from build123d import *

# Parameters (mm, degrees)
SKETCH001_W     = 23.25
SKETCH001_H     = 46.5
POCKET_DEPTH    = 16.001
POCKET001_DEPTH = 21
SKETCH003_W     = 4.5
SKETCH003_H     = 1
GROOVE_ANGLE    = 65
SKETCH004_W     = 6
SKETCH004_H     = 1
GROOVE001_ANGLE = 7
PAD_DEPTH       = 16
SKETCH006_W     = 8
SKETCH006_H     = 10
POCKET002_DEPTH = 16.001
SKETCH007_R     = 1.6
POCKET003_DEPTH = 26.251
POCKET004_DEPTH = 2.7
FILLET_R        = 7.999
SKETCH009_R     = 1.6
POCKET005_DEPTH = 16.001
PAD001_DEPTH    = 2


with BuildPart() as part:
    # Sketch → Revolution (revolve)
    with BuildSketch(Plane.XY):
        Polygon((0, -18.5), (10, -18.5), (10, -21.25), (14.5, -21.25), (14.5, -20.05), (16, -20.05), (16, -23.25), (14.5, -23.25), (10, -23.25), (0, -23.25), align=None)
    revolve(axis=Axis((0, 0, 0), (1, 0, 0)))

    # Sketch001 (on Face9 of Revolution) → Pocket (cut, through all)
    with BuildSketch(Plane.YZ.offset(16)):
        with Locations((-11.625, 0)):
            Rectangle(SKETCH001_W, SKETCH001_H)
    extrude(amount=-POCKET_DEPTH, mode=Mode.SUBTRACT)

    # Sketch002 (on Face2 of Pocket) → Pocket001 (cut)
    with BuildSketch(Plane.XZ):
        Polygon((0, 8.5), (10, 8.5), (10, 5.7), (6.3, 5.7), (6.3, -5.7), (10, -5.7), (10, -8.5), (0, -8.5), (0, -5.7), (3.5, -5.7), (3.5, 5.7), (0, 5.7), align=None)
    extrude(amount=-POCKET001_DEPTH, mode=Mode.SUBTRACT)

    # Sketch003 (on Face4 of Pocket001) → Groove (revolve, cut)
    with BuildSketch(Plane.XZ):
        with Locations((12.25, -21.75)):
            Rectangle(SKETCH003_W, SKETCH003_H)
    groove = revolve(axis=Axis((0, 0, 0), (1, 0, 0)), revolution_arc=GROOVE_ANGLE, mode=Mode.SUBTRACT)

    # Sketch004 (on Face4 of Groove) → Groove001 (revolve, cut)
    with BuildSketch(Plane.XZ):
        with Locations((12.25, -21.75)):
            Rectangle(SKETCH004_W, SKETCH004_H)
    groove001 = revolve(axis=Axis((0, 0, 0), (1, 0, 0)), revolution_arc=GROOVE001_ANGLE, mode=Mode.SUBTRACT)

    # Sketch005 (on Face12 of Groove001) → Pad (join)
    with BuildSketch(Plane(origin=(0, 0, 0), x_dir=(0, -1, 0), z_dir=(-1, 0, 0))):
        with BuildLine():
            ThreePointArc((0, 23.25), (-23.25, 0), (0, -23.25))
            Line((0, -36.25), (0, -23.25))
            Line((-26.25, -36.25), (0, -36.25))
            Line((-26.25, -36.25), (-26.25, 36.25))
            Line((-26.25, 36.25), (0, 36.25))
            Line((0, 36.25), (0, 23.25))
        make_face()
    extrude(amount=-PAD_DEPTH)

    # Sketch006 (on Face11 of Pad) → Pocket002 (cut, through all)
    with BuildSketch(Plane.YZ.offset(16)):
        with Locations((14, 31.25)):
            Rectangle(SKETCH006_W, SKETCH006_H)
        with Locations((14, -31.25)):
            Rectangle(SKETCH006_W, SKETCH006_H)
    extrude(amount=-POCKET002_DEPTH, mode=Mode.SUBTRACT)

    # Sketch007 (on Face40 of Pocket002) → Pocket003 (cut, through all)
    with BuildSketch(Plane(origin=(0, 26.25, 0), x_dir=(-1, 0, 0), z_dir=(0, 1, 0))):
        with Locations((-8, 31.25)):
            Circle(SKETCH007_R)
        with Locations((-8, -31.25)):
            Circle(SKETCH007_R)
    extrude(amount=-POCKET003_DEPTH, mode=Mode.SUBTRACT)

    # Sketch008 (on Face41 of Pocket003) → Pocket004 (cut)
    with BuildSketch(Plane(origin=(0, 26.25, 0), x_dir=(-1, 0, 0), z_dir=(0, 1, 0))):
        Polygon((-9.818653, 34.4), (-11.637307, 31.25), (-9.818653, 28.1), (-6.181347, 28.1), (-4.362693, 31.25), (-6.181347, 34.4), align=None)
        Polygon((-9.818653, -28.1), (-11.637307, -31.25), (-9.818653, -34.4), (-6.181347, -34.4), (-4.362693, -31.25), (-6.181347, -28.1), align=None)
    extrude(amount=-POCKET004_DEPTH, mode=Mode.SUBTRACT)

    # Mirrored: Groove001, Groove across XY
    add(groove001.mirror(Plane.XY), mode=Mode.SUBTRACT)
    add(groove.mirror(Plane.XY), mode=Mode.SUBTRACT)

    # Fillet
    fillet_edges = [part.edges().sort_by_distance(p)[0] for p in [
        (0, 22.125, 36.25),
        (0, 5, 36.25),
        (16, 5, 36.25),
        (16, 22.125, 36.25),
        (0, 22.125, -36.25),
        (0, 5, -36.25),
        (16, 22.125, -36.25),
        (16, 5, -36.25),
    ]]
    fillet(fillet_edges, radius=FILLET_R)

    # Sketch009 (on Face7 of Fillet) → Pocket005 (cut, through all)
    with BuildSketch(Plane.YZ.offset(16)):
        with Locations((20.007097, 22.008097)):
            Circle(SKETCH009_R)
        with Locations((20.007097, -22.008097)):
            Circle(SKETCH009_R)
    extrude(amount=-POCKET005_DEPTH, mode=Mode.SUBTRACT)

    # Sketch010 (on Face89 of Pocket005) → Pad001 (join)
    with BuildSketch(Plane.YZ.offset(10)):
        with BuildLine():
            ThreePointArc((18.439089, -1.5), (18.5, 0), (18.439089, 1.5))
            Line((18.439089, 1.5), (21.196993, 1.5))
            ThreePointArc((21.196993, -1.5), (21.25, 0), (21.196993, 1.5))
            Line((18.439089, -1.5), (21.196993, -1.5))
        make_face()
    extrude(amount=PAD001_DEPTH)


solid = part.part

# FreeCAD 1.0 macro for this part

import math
import FreeCAD as App
import Part
import Sketcher
from FreeCAD import Vector
Q = App.Units.Quantity


def edges_at(feature, points):
    """Names of the edges that pass closest to the given points."""
    edges = feature.Shape.Edges
    near = lambda p: min(range(len(edges)), key=lambda i: edges[i].distToShape(Part.Vertex(*p))[0])
    return sorted({f"Edge{near(p) + 1}" for p in points})


def add_polygon(sketch, points):
    """Adds a closed chain of lines whose ends are joined by coincident constraints."""
    first, n = sketch.GeometryCount, len(points)
    for a, b in zip(points, points[1:] + points[:1]):
        sketch.addGeometry(Part.LineSegment(App.Vector(*a, 0), App.Vector(*b, 0)), False)
    for i in range(n):
        sketch.addConstraint(Sketcher.Constraint("Coincident", first + i, 2, first + (i + 1) % n, 1))

doc = App.newDocument("Part")
body = doc.addObject("PartDesign::Body", "Body")

sketch1 = body.newObject("Sketcher::SketchObject", "Sketch")
sketch1.AttachmentSupport = (doc.getObject("XY_Plane"), [""])
sketch1.MapMode = "FlatFace"
add_polygon(sketch1, [(10, -18.5), (0, -18.5), (0, -23.2), (16, -23.2), (16, -20.1), (14.5, -20.1), (14.5, -21.2), (10, -21.2)])
sketch1.addConstraint([
    Sketcher.Constraint("Horizontal", 0),
    Sketcher.Constraint("Vertical", 1),
    Sketcher.Constraint("Horizontal", 2),
    Sketcher.Constraint("Vertical", 3),
    Sketcher.Constraint("Horizontal", 4),
    Sketcher.Constraint("Vertical", 5),
    Sketcher.Constraint("Horizontal", 6),
    Sketcher.Constraint("Vertical", 7),
    Sketcher.Constraint("PointOnObject", 0, 2, -2),
    Sketcher.Constraint("DistanceX", 0, 2, 0, 1, Q("10 mm")),
    Sketcher.Constraint("DistanceX", 2, 1, 2, 2, Q("16 mm")),
    Sketcher.Constraint("DistanceX", 4, 2, 4, 1, Q("1.5 mm")),
    Sketcher.Constraint("DistanceY", 3, 1, 3, 2, Q("3.2 mm")),
    Sketcher.Constraint("DistanceY", 5, 2, 5, 1, Q("1.2 mm")),
    Sketcher.Constraint("DistanceY", 1, 2, 1, 1, Q("4.75 mm")),
    Sketcher.Constraint("DistanceY", 0, 2, -1, 1, Q("18.5 mm")),
])
revolution = body.newObject("PartDesign::Revolution", "Revolution")
revolution.Profile = sketch1
revolution.ReferenceAxis = (sketch1, ["H_Axis"])
revolution.Angle = 360

sketch2 = body.newObject("Sketcher::SketchObject", "Sketch001")
sketch2.AttachmentSupport = (doc.getObject("YZ_Plane"), [""])
sketch2.MapMode = "FlatFace"
sketch2.AttachmentOffset = App.Placement(Vector(0, 0, 16), App.Rotation())
add_polygon(sketch2, [(-23, 23), (-23, -23), (0, -23), (0, 23)])
sketch2.addConstraint([
    Sketcher.Constraint("Vertical", 0),
    Sketcher.Constraint("Horizontal", 1),
    Sketcher.Constraint("Vertical", 2),
    Sketcher.Constraint("Horizontal", 3),
    Sketcher.Constraint("Symmetric", 1, 2, 2, 2, -1, 1),
    Sketcher.Constraint("DistanceY", 0, 2, 0, 1, Q("46.5 mm")),
    Sketcher.Constraint("DistanceX", 1, 1, 1, 2, Q("23.25 mm")),
])
pocket1 = body.newObject("PartDesign::Pocket", "Pocket")
pocket1.Profile = sketch2
pocket1.Type = "ThroughAll"

sketch3 = body.newObject("Sketcher::SketchObject", "Sketch002")
sketch3.AttachmentSupport = (doc.getObject("XZ_Plane"), [""])
sketch3.MapMode = "FlatFace"
add_polygon(sketch3, [(10, 8.5), (0, 8.5), (0, 5.7), (3.5, 5.7), (3.5, -5.7), (0, -5.7), (0, -8.5), (10, -8.5), (10, -5.7), (6.3, -5.7), (6.3, 5.7), (10, 5.7)])
sketch3.addConstraint([
    Sketcher.Constraint("Horizontal", 0),
    Sketcher.Constraint("Vertical", 1),
    Sketcher.Constraint("Horizontal", 2),
    Sketcher.Constraint("Vertical", 3),
    Sketcher.Constraint("Horizontal", 4),
    Sketcher.Constraint("Vertical", 5),
    Sketcher.Constraint("Horizontal", 6),
    Sketcher.Constraint("Vertical", 7),
    Sketcher.Constraint("Horizontal", 8),
    Sketcher.Constraint("Vertical", 9),
    Sketcher.Constraint("Horizontal", 10),
    Sketcher.Constraint("Vertical", 11),
    Sketcher.Constraint("Symmetric", 1, 2, 4, 2, -1, 1),
    Sketcher.Constraint("Symmetric", 0, 2, 5, 2, -1),
    Sketcher.Constraint("Symmetric", 7, 2, 10, 2, -1),
    Sketcher.Constraint("Horizontal", 4, 2, 7, 2),
    Sketcher.Constraint("DistanceX", 0, 2, 0, 1, Q("10 mm")),
    Sketcher.Constraint("DistanceX", 2, 1, 2, 2, Q("3.5 mm")),
    Sketcher.Constraint("DistanceX", 8, 2, 8, 1, Q("3.7 mm")),
    Sketcher.Constraint("DistanceY", 1, 2, 1, 1, Q("2.8 mm")),
    Sketcher.Constraint("DistanceY", 3, 2, 3, 1, Q("11.4 mm")),
])
pocket2 = body.newObject("PartDesign::Pocket", "Pocket001")
pocket2.Profile = sketch3
pocket2.Length = 21

sketch4 = body.newObject("Sketcher::SketchObject", "Sketch003")
sketch4.AttachmentSupport = (doc.getObject("XZ_Plane"), [""])
sketch4.MapMode = "FlatFace"
add_polygon(sketch4, [(10, -21.2), (10, -22.2), (14.5, -22.2), (14.5, -21.2)])
sketch4.addConstraint([
    Sketcher.Constraint("Vertical", 0),
    Sketcher.Constraint("Horizontal", 1),
    Sketcher.Constraint("Vertical", 2),
    Sketcher.Constraint("Horizontal", 3),
    Sketcher.Constraint("DistanceY", 0, 2, 0, 1, Q("1 mm")),
    Sketcher.Constraint("DistanceX", 1, 1, 1, 2, Q("4.5 mm")),
    Sketcher.Constraint("DistanceX", -1, 1, 0, 2, Q("10 mm")),
    Sketcher.Constraint("DistanceY", 0, 2, -1, 1, Q("22.25 mm")),
])
groove = body.newObject("PartDesign::Groove", "Groove")
groove.Profile = sketch4
groove.ReferenceAxis = (sketch4, ["H_Axis"])
groove.Angle = 65

sketch5 = body.newObject("Sketcher::SketchObject", "Sketch004")
sketch5.AttachmentSupport = (doc.getObject("XZ_Plane"), [""])
sketch5.MapMode = "FlatFace"
add_polygon(sketch5, [(9.2, -21.2), (9.2, -22.2), (15.2, -22.2), (15.2, -21.2)])
sketch5.addConstraint([
    Sketcher.Constraint("Vertical", 0),
    Sketcher.Constraint("Horizontal", 1),
    Sketcher.Constraint("Vertical", 2),
    Sketcher.Constraint("Horizontal", 3),
    Sketcher.Constraint("DistanceX", 1, 1, 1, 2, Q("6 mm")),
    Sketcher.Constraint("DistanceY", 0, 2, 0, 1, Q("1 mm")),
    Sketcher.Constraint("DistanceX", -1, 1, 0, 2, Q("9.25 mm")),
    Sketcher.Constraint("DistanceY", 0, 2, -1, 1, Q("22.25 mm")),
])
groove2 = body.newObject("PartDesign::Groove", "Groove001")
groove2.Profile = sketch5
groove2.ReferenceAxis = (sketch5, ["H_Axis"])
groove2.Angle = 7

sketch6 = body.newObject("Sketcher::SketchObject", "Sketch005")
sketch6.AttachmentSupport = (doc.getObject("YZ_Plane"), [""])
sketch6.MapMode = "FlatFace"
sketch6.addGeometry([
    Part.ArcOfCircle(Part.Circle(Vector(0, 0, 0), Vector(0, 0, 1), 23), math.radians(-90), math.radians(90)),
    Part.LineSegment(Vector(0, 23, 0), Vector(0, 36, 0)),
    Part.LineSegment(Vector(0, 36, 0), Vector(26, 36, 0)),
    Part.LineSegment(Vector(26, 36, 0), Vector(26, -36, 0)),
    Part.LineSegment(Vector(26, -36, 0), Vector(0, -36, 0)),
    Part.LineSegment(Vector(0, -36, 0), Vector(0, -23, 0)),
], False)
sketch6.addConstraint([
    Sketcher.Constraint("Coincident", 0, 2, 1, 1),
    Sketcher.Constraint("Coincident", 1, 2, 2, 1),
    Sketcher.Constraint("Coincident", 2, 2, 3, 1),
    Sketcher.Constraint("Coincident", 3, 2, 4, 1),
    Sketcher.Constraint("Coincident", 4, 2, 5, 1),
    Sketcher.Constraint("Coincident", 5, 2, 0, 1),
    Sketcher.Constraint("Vertical", 1),
    Sketcher.Constraint("Horizontal", 2),
    Sketcher.Constraint("Vertical", 3),
    Sketcher.Constraint("Horizontal", 4),
    Sketcher.Constraint("Vertical", 5),
    Sketcher.Constraint("Coincident", 0, 3, -1, 1),
    Sketcher.Constraint("Symmetric", 1, 2, 4, 2, -1, 1),
    Sketcher.Constraint("PointOnObject", 0, 2, -2),
    Sketcher.Constraint("DistanceY", 1, 1, 1, 2, Q("13 mm")),
    Sketcher.Constraint("Radius", 0, Q("23.25 mm")),
    Sketcher.Constraint("DistanceX", 2, 1, 2, 2, Q("26.25 mm")),
])
pad1 = body.newObject("PartDesign::Pad", "Pad")
pad1.Profile = sketch6
pad1.Length = 16

sketch7 = body.newObject("Sketcher::SketchObject", "Sketch006")
sketch7.AttachmentSupport = (doc.getObject("YZ_Plane"), [""])
sketch7.MapMode = "FlatFace"
sketch7.AttachmentOffset = App.Placement(Vector(0, 0, 16), App.Rotation())
add_polygon(sketch7, [(10, 36), (10, 26), (18, 26), (18, 36)])
add_polygon(sketch7, [(10, -26), (10, -36), (18, -36), (18, -26)])
sketch7.addConstraint([
    Sketcher.Constraint("Vertical", 0),
    Sketcher.Constraint("Horizontal", 1),
    Sketcher.Constraint("Vertical", 2),
    Sketcher.Constraint("Horizontal", 3),
    Sketcher.Constraint("Vertical", 4),
    Sketcher.Constraint("Horizontal", 5),
    Sketcher.Constraint("Vertical", 6),
    Sketcher.Constraint("Horizontal", 7),
    Sketcher.Constraint("Symmetric", 3, 2, 4, 2, -1),
    Sketcher.Constraint("Symmetric", 1, 2, 6, 2, -1),
    Sketcher.Constraint("DistanceX", 1, 1, 1, 2, Q("8 mm")),
    Sketcher.Constraint("DistanceY", 0, 2, 0, 1, Q("10 mm")),
    Sketcher.Constraint("DistanceX", -1, 1, 0, 2, Q("10 mm")),
    Sketcher.Constraint("DistanceY", 4, 2, 0, 2, Q("62.5 mm")),
])
pocket3 = body.newObject("PartDesign::Pocket", "Pocket002")
pocket3.Profile = sketch7
pocket3.Type = "ThroughAll"

sketch8 = body.newObject("Sketcher::SketchObject", "Sketch007")
sketch8.AttachmentSupport = (doc.getObject("XZ_Plane"), [""])
sketch8.MapMode = "FlatFace"
sketch8.AttachmentOffset = App.Placement(Vector(0, 0, -26.25), App.Rotation())
sketch8.addGeometry([
    Part.Circle(Vector(8, 31.2, 0), Vector(0, 0, 1), 1.6),
    Part.Circle(Vector(8, -31.2, 0), Vector(0, 0, 1), 1.6),
], False)
sketch8.addConstraint([
    Sketcher.Constraint("Equal", 0, 1),
    Sketcher.Constraint("Symmetric", 0, 3, 1, 3, -1),
    Sketcher.Constraint("Diameter", 0, Q("3.2 mm")),
    Sketcher.Constraint("DistanceX", -1, 1, 0, 3, Q("8 mm")),
    Sketcher.Constraint("DistanceY", 1, 3, 0, 3, Q("62.5 mm")),
])
pocket4 = body.newObject("PartDesign::Pocket", "Pocket003")
pocket4.Profile = sketch8
pocket4.Type = "ThroughAll"
pocket4.Reversed = True

sketch9 = body.newObject("Sketcher::SketchObject", "Sketch008")
sketch9.AttachmentSupport = (doc.getObject("XZ_Plane"), [""])
sketch9.MapMode = "FlatFace"
sketch9.AttachmentOffset = App.Placement(Vector(0, 0, -26.25), App.Rotation())
add_polygon(sketch9, [(9.8, 34.4), (11.6, 31.2), (9.8, 28.1), (6.2, 28.1), (4.4, 31.2), (6.2, 34.4)])
add_polygon(sketch9, [(9.8, -28.1), (11.6, -31.2), (9.8, -34.4), (6.2, -34.4), (4.4, -31.2), (6.2, -28.1)])
sketch9.addConstraint([
    Sketcher.Constraint("Horizontal", 2),
    Sketcher.Constraint("Horizontal", 5),
    Sketcher.Constraint("Horizontal", 8),
    Sketcher.Constraint("Horizontal", 11),
    Sketcher.Constraint("Symmetric", 0, 2, 6, 2, -1),
    Sketcher.Constraint("Symmetric", 5, 2, 7, 2, -1),
    Sketcher.Constraint("Symmetric", 3, 2, 9, 2, -1),
    Sketcher.Constraint("Symmetric", 2, 2, 10, 2, -1),
    Sketcher.Constraint("Parallel", 0, 3),
    Sketcher.Constraint("Parallel", 1, 4),
    Sketcher.Constraint("Parallel", 3, 6),
    Sketcher.Constraint("Parallel", 4, 7),
    Sketcher.Constraint("Parallel", 6, 9),
    Sketcher.Constraint("Horizontal", 0, 2, 3, 2),
    Sketcher.Constraint("Vertical", 2, 2, 4, 2),
    Sketcher.Constraint("Angle", 0, Q("-59.999991 deg")),
    Sketcher.Constraint("DistanceY", -1, 1, 1, 2, Q("28.1 mm")),
    Sketcher.Constraint("DistanceY", -1, 1, 4, 2, Q("34.4 mm")),
    Sketcher.Constraint("DistanceX", 2, 2, 2, 1, Q("3.637306 mm")),
    Sketcher.Constraint("DistanceX", -1, 1, 0, 2, Q("11.637307 mm")),
])
pocket5 = body.newObject("PartDesign::Pocket", "Pocket004")
pocket5.Profile = sketch9
pocket5.Length = 2.7
pocket5.Reversed = True
doc.recompute()

mirrored = body.newObject("PartDesign::Mirrored", "Mirrored")
mirrored.Originals = [groove2, groove]
mirrored.MirrorPlane = (doc.getObject("XY_Plane"), [""])
body.Tip = mirrored
doc.recompute()

fillet = body.newObject("PartDesign::Fillet", "Fillet")
fillet.Base = (mirrored, edges_at(mirrored, [
    (0, 22.125, 36.25),
    (0, 5, 36.25),
    (16, 5, 36.25),
    (16, 22.125, 36.25),
    (0, 22.125, -36.25),
    (0, 5, -36.25),
    (16, 22.125, -36.25),
    (16, 5, -36.25),
]))
fillet.Radius = 7.999

sketch10 = body.newObject("Sketcher::SketchObject", "Sketch009")
sketch10.AttachmentSupport = (doc.getObject("YZ_Plane"), [""])
sketch10.MapMode = "FlatFace"
sketch10.AttachmentOffset = App.Placement(Vector(0, 0, 16), App.Rotation())
sketch10.addGeometry([
    Part.Circle(Vector(20, 22, 0), Vector(0, 0, 1), 1.6),
    Part.Circle(Vector(20, -22, 0), Vector(0, 0, 1), 1.6),
], False)
sketch10.addConstraint([
    Sketcher.Constraint("Equal", 0, 1),
    Sketcher.Constraint("Symmetric", 0, 3, 1, 3, -1),
    Sketcher.Constraint("Diameter", 0, Q("3.2 mm")),
    Sketcher.Constraint("DistanceX", -1, 1, 0, 3, Q("20.007097 mm")),
    Sketcher.Constraint("DistanceY", -1, 1, 0, 3, Q("22.008097 mm")),
])
pocket6 = body.newObject("PartDesign::Pocket", "Pocket005")
pocket6.Profile = sketch10
pocket6.Type = "ThroughAll"

sketch11 = body.newObject("Sketcher::SketchObject", "Sketch010")
sketch11.AttachmentSupport = (doc.getObject("YZ_Plane"), [""])
sketch11.MapMode = "FlatFace"
sketch11.AttachmentOffset = App.Placement(Vector(0, 0, 10), App.Rotation())
sketch11.addGeometry([
    Part.ArcOfCircle(Part.Circle(Vector(0, 0, 0), Vector(0, 0, 1), 18.5), math.radians(-4.65), math.radians(4.65)),
    Part.LineSegment(Vector(18.4, -1.5, 0), Vector(21.2, -1.5, 0)),
    Part.ArcOfCircle(Part.Circle(Vector(0, 0, 0), Vector(0, 0, 1), 21.3), math.radians(-4.05), math.radians(4.05)),
    Part.LineSegment(Vector(21.2, 1.5, 0), Vector(18.4, 1.5, 0)),
], False)
sketch11.addConstraint([
    Sketcher.Constraint("Coincident", 0, 1, 1, 1),
    Sketcher.Constraint("Coincident", 1, 2, 2, 1),
    Sketcher.Constraint("Coincident", 2, 2, 3, 1),
    Sketcher.Constraint("Coincident", 3, 2, 0, 2),
    Sketcher.Constraint("Horizontal", 1),
    Sketcher.Constraint("Horizontal", 3),
    Sketcher.Constraint("Symmetric", 1, 2, 2, 2, -1),
    Sketcher.Constraint("PointOnObject", 0, 3, -1),
    Sketcher.Constraint("DistanceY", 1, 2, 2, 2, Q("3 mm")),
    Sketcher.Constraint("Radius", 0, Q("18.500026 mm")),
    Sketcher.Constraint("Radius", 2, Q("21.250115 mm")),
    Sketcher.Constraint("DistanceX", 1, 1, 1, 2, Q("2.757904 mm")),
    Sketcher.Constraint("DistanceX", -1, 1, 0, 1, Q("18.439089 mm")),
])
pad2 = body.newObject("PartDesign::Pad", "Pad001")
pad2.Profile = sketch11
pad2.Length = 2

doc.recompute()
